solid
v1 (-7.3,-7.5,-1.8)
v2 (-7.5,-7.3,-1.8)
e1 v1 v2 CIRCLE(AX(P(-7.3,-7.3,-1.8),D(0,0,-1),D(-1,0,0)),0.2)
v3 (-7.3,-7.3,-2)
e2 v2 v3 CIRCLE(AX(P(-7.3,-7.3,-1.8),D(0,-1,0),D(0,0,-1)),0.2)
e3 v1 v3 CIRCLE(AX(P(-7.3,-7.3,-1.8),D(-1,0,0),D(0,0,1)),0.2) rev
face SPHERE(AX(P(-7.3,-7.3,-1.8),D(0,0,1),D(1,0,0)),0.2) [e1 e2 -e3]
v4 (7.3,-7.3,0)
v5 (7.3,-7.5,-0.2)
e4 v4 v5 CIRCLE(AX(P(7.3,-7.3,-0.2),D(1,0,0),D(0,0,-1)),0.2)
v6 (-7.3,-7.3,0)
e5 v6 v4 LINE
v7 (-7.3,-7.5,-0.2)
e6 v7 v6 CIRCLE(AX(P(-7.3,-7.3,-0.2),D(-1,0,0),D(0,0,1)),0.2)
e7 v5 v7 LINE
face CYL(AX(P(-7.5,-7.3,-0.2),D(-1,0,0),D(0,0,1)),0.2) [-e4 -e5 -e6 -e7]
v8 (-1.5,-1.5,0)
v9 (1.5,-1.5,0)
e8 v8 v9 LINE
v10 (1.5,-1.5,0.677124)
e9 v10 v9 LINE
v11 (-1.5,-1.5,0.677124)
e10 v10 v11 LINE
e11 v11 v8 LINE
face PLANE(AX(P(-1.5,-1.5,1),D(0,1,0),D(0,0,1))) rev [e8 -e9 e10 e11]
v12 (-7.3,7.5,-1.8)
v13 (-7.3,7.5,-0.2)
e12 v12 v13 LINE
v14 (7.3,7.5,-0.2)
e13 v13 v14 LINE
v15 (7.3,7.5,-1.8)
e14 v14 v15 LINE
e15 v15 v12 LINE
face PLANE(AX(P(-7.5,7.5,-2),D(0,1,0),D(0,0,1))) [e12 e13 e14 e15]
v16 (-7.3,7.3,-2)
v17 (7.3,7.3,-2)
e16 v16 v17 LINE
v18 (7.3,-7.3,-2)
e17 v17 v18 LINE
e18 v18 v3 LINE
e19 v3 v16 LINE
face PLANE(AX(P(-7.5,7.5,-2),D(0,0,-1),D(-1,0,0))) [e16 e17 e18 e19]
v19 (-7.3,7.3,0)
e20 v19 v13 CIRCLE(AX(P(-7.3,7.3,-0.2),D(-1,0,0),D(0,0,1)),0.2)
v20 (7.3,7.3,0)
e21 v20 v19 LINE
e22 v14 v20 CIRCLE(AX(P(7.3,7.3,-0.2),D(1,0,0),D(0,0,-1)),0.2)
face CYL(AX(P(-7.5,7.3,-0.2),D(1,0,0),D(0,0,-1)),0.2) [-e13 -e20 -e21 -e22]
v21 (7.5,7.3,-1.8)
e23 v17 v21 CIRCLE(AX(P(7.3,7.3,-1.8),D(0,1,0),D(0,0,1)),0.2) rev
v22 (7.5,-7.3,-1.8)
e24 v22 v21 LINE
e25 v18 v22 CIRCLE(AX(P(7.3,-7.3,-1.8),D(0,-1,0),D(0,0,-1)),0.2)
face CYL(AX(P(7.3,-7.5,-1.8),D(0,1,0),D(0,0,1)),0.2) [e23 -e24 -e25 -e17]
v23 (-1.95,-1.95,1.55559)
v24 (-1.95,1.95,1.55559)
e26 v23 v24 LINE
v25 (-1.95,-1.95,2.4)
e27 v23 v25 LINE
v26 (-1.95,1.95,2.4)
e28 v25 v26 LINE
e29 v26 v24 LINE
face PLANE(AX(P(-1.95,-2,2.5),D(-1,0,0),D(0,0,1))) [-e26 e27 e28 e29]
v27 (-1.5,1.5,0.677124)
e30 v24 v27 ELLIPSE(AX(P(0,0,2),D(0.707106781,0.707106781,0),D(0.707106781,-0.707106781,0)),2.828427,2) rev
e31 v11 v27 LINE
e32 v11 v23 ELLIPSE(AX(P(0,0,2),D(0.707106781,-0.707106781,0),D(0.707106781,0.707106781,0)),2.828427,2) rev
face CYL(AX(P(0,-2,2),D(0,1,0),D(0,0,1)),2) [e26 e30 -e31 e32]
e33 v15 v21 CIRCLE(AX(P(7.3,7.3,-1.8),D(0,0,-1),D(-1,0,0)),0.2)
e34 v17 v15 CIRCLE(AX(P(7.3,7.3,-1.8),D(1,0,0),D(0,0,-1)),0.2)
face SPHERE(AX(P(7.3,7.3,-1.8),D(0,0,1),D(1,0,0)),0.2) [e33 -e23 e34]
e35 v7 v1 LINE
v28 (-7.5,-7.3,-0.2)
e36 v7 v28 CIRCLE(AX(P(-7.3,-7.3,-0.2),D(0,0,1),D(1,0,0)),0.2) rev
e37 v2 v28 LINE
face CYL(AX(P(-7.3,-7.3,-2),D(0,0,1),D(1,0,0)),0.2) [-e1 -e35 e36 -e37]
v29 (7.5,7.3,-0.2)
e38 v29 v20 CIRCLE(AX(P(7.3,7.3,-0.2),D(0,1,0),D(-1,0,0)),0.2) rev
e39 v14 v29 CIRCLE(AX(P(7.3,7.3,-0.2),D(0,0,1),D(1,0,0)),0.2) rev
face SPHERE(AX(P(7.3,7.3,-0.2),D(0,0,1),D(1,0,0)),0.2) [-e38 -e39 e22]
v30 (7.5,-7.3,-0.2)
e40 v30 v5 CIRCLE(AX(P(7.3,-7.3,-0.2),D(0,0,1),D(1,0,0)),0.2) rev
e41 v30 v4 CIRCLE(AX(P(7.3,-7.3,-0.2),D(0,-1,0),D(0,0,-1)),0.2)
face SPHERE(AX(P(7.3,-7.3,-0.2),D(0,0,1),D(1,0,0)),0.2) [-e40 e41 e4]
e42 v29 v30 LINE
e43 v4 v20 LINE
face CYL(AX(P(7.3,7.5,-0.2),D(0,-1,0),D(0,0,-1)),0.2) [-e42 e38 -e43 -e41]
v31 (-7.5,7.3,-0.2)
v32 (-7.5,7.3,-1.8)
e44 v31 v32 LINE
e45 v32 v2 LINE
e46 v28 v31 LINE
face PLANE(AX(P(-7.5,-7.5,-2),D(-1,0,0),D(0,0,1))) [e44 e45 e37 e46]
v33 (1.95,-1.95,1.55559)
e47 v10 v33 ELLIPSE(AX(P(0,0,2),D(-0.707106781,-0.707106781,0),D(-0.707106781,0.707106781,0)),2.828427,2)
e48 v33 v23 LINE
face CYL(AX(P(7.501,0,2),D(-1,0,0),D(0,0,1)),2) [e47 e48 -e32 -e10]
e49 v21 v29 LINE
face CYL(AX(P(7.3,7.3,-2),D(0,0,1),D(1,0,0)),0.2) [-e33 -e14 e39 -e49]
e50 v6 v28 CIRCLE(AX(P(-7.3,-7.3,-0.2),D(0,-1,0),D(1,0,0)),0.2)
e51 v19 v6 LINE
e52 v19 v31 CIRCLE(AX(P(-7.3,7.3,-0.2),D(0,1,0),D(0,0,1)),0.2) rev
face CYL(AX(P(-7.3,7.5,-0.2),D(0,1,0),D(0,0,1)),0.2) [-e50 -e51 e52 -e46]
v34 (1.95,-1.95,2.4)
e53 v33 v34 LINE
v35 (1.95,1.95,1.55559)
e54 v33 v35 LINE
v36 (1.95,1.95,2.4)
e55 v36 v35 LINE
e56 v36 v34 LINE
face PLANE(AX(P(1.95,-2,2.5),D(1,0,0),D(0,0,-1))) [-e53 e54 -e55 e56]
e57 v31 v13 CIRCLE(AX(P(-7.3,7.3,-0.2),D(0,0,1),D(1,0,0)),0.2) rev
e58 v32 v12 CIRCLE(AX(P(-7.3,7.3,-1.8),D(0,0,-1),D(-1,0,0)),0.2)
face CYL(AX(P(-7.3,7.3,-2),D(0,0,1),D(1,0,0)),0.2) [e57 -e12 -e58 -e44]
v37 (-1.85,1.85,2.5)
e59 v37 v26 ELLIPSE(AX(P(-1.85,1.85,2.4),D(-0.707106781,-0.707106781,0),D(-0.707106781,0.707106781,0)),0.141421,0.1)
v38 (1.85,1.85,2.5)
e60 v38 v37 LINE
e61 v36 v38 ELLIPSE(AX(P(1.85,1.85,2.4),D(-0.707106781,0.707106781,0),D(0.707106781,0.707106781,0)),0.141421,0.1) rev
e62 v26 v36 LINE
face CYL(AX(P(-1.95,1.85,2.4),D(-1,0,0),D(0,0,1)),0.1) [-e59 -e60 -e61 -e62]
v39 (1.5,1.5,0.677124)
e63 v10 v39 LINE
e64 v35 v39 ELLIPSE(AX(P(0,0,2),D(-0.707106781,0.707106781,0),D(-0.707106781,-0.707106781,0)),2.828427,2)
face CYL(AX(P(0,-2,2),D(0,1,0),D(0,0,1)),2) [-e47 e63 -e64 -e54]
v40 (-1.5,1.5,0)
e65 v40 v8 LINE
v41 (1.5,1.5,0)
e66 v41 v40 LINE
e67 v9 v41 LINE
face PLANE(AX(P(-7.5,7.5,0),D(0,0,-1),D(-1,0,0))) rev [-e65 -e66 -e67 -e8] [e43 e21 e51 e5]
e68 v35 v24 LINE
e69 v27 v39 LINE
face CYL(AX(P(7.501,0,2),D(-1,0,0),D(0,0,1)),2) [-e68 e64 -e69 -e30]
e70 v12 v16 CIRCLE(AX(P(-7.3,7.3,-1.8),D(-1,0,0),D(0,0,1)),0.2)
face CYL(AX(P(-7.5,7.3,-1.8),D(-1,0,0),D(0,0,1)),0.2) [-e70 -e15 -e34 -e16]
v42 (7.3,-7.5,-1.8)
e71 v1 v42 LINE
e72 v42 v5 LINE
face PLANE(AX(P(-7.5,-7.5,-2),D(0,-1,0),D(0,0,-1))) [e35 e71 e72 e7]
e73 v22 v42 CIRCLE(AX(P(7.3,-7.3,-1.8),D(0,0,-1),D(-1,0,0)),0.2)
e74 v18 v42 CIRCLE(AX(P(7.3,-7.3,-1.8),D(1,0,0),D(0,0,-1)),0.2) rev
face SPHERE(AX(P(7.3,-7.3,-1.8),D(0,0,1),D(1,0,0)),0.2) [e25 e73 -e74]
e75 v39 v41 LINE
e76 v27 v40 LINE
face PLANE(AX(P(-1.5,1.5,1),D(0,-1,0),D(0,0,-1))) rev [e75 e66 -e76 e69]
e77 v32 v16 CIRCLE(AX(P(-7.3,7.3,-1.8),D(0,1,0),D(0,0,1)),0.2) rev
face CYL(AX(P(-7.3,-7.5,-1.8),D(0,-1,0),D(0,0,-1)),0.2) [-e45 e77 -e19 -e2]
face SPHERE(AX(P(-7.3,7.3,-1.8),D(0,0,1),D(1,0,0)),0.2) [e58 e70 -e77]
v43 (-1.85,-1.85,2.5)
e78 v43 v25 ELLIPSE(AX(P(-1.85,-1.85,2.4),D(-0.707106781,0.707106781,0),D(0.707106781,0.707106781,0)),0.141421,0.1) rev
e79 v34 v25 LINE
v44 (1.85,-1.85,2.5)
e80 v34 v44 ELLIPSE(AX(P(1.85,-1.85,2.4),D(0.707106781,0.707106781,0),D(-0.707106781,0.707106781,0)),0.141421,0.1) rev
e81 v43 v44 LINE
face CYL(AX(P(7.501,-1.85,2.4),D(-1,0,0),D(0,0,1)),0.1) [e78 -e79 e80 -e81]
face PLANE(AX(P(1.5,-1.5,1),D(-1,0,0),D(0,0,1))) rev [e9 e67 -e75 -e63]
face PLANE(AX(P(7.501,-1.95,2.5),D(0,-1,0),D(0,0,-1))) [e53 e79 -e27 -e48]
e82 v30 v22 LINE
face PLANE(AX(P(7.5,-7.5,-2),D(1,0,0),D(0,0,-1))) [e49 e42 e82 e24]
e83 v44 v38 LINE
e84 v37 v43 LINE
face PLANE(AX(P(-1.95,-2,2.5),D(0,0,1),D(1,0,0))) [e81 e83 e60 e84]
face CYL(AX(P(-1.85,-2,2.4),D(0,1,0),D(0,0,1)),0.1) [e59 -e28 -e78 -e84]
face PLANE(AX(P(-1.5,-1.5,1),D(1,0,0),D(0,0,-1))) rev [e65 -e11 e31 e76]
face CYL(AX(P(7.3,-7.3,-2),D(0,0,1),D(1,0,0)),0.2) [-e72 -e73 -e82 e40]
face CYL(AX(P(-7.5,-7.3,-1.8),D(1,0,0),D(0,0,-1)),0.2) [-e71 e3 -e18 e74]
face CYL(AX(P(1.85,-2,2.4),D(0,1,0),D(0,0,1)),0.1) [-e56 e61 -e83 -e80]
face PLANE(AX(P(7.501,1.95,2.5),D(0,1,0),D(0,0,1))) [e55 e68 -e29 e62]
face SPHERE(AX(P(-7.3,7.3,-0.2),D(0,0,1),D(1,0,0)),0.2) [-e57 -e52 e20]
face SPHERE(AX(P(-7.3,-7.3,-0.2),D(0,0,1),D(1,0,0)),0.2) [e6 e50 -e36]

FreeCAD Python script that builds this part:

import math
import FreeCAD as App
import Part
import Sketcher

V = App.Vector


def edges_at(feature, points):
    """Names of the edges that pass closest to the given points."""
    edges = feature.Shape.Edges
    near = lambda p: min(range(len(edges)), key=lambda i: edges[i].distToShape(Part.Vertex(*p))[0])
    return sorted({f"Edge{near(p) + 1}" for p in points})


def add_polygon(sketch, points):
    """Adds a closed chain of lines whose ends are joined by coincident constraints."""
    first, n = sketch.GeometryCount, len(points)
    for a, b in zip(points, points[1:] + points[:1]):
        sketch.addGeometry(Part.LineSegment(App.Vector(*a, 0), App.Vector(*b, 0)), False)
    for i in range(n):
        sketch.addConstraint(Sketcher.Constraint("Coincident", first + i, 2, first + (i + 1) % n, 1))

doc = App.newDocument("Part")
params = doc.addObject("Spreadsheet::Sheet", "Params")
for row, (alias, value) in enumerate([
    ("sketch1_width", "15 mm"),
    ("pad1_length", "2 mm"),
    ("sketch2_width", "3 mm"),
    ("pad2_length", "1 mm"),
    ("sketch3_radius", "2 mm"),
    ("sketch3_width", "3 mm"),
    ("sketch3_width2", "3.9 mm"),
    ("pad3_length", "2 mm"),
    ("pad3_length2", "2 mm"),
    ("sketch4_radius", "2 mm"),
    ("sketch4_width", "0.5 mm"),
    ("sketch4_width2", "0.05 mm"),
    ("sketch5_radius", "2 mm"),
    ("sketch5_width", "0.5 mm"),
    ("sketch5_width2", "0.05 mm"),
    ("sketch6_radius", "2 mm"),
    ("sketch6_width", "0.5 mm"),
    ("sketch6_width2", "0.05 mm"),
    ("sketch7_radius", "2 mm"),
    ("sketch7_width", "0.5 mm"),
    ("sketch7_width2", "0.05 mm"),
    ("fillet_radius", "0.1 mm"),
    ("fillet2_radius", "0.2 mm"),
], start=1):
    params.set(f"A{row}", alias)
    params.set(f"B{row}", "=" + value)
    params.setAlias(f"B{row}", alias)

body = doc.addObject("PartDesign::Body", "Body")

sketch1 = doc.addObject("Sketcher::SketchObject", "Sketch")
body.addObject(sketch1)
sketch1.AttachmentSupport = (doc.XY_Plane, [""])
sketch1.MapMode = "FlatFace"
add_polygon(sketch1, [(-8, 8), (-8, -8), (8, -8), (8, 8)])
sketch1.addConstraint([
    Sketcher.Constraint("Vertical", 0),
    Sketcher.Constraint("Horizontal", 1),
    Sketcher.Constraint("Vertical", 2),
    Sketcher.Constraint("Horizontal", 3),
    Sketcher.Constraint("Symmetric", 0, 2, 2, 2, -1, 1),
    Sketcher.Constraint("Equal", 3, 0),
    Sketcher.Constraint("DistanceX", 1, 1, 1, 2, 15.0),
])
sketch1.setExpression("Constraints[10]", "Params.sketch1_width")
pad1 = doc.addObject("PartDesign::Pad", "Pad")
body.addObject(pad1)
pad1.Profile = sketch1
pad1.setExpression("Length", "Params.pad1_length")
pad1.Reversed = True

sketch2 = doc.addObject("Sketcher::SketchObject", "Sketch001")
body.addObject(sketch2)
sketch2.AttachmentSupport = (doc.XY_Plane, [""])
sketch2.MapMode = "FlatFace"
add_polygon(sketch2, [(-1.5, 1.5), (-1.5, -1.5), (1.5, -1.5), (1.5, 1.5)])
sketch2.addConstraint([
    Sketcher.Constraint("Vertical", 0),
    Sketcher.Constraint("Horizontal", 1),
    Sketcher.Constraint("Vertical", 2),
    Sketcher.Constraint("Horizontal", 3),
    Sketcher.Constraint("Symmetric", 0, 2, 2, 2, -1, 1),
    Sketcher.Constraint("Equal", 3, 0),
    Sketcher.Constraint("DistanceX", 1, 1, 1, 2, 3.0),
])
sketch2.setExpression("Constraints[10]", "Params.sketch2_width")
pad2 = doc.addObject("PartDesign::Pad", "Pad001")
body.addObject(pad2)
pad2.Profile = sketch2
pad2.setExpression("Length", "Params.pad2_length")

sketch3 = doc.addObject("Sketcher::SketchObject", "Sketch002")
body.addObject(sketch3)
sketch3.AttachmentSupport = (doc.XZ_Plane, [""])
sketch3.MapMode = "FlatFace"
sketch3.addGeometry([
    Part.LineSegment(V(-1.9, 2.5, 0), V(1.9, 2.5, 0)),
    Part.LineSegment(V(1.9, 2.5, 0), V(1.9, 1.6, 0)),
    Part.ArcOfCircle(Part.Circle(V(0, 2, 0), V(0, 0, 1), 2), math.radians(-41), math.radians(-13)),
    Part.LineSegment(V(1.5, 0.7, 0), V(-1.5, 0.7, 0)),
    Part.ArcOfCircle(Part.Circle(V(0, 2, 0), V(0, 0, 1), 2), math.radians(-167), math.radians(-139)),
    Part.LineSegment(V(-1.9, 1.6, 0), V(-1.9, 2.5, 0)),
], False)
sketch3.addConstraint([
    Sketcher.Constraint("Coincident", 0, 2, 1, 1),
    Sketcher.Constraint("Coincident", 1, 2, 2, 2),
    Sketcher.Constraint("Coincident", 2, 1, 3, 1),
    Sketcher.Constraint("Coincident", 3, 2, 4, 2),
    Sketcher.Constraint("Coincident", 4, 1, 5, 1),
    Sketcher.Constraint("Coincident", 5, 2, 0, 1),
    Sketcher.Constraint("Horizontal", 0),
    Sketcher.Constraint("Vertical", 1),
    Sketcher.Constraint("Horizontal", 3),
    Sketcher.Constraint("Vertical", 5),
    Sketcher.Constraint("Coincident", 4, 3, 2, 3),
    Sketcher.Constraint("Equal", 2, 4),
    Sketcher.Constraint("Symmetric", 1, 2, 4, 1, -2),
    Sketcher.Constraint("Radius", 2, 2.0),
    Sketcher.Constraint("DistanceX", 3, 2, 3, 1, 3.0),
    Sketcher.Constraint("DistanceX", 0, 1, 0, 2, 3.9),
    Sketcher.Constraint("DistanceY", -1, 1, 2, 3, 2.0),
    Sketcher.Constraint("DistanceY", -1, 1, 0, 2, 2.5),
])
sketch3.setExpression("Constraints[13]", "Params.sketch3_radius")
sketch3.setExpression("Constraints[14]", "Params.sketch3_width")
sketch3.setExpression("Constraints[15]", "Params.sketch3_width2")
pad3 = doc.addObject("PartDesign::Pad", "Pad002")
body.addObject(pad3)
pad3.Profile = sketch3
pad3.Type = "TwoLengths"
pad3.setExpression("Length", "Params.pad3_length")
pad3.setExpression("Length2", "Params.pad3_length2")
pad3.Reversed = True

sketch4 = doc.addObject("Sketcher::SketchObject", "Sketch003")
body.addObject(sketch4)
sketch4.AttachmentSupport = (doc.YZ_Plane, [""])
sketch4.MapMode = "FlatFace"
sketch4.addGeometry([
    Part.LineSegment(V(1.95, 2.5, 0), V(1.95, 1.56, 0)),
    Part.ArcOfCircle(Part.Circle(V(0, 2, 0), V(0, 0, 1), 2), math.radians(-41), math.radians(-13)),
    Part.LineSegment(V(1.5, 0.68, 0), V(2, 0.68, 0)),
    Part.LineSegment(V(2, 0.68, 0), V(2, 2.5, 0)),
    Part.LineSegment(V(2, 2.5, 0), V(1.95, 2.5, 0)),
], False)
sketch4.addConstraint([
    Sketcher.Constraint("Coincident", 0, 2, 1, 2),
    Sketcher.Constraint("Coincident", 1, 1, 2, 1),
    Sketcher.Constraint("Coincident", 2, 2, 3, 1),
    Sketcher.Constraint("Coincident", 3, 2, 4, 1),
    Sketcher.Constraint("Coincident", 4, 2, 0, 1),
    Sketcher.Constraint("Vertical", 0),
    Sketcher.Constraint("Horizontal", 2),
    Sketcher.Constraint("Vertical", 3),
    Sketcher.Constraint("Horizontal", 4),
    Sketcher.Constraint("PointOnObject", 1, 3, -2),
    Sketcher.Constraint("Radius", 1, 2.0),
    Sketcher.Constraint("DistanceX", 2, 1, 2, 2, 0.5),
    Sketcher.Constraint("DistanceY", -1, 1, 1, 3, 2.0),
    Sketcher.Constraint("DistanceX", -1, 1, 2, 2, 2.0),
    Sketcher.Constraint("DistanceX", 4, 2, 4, 1, 0.05),
    Sketcher.Constraint("DistanceY", -1, 1, 3, 2, 2.5),
])
sketch4.setExpression("Constraints[10]", "Params.sketch4_radius")
sketch4.setExpression("Constraints[11]", "Params.sketch4_width")
sketch4.setExpression("Constraints[14]", "Params.sketch4_width2")
pocket1 = doc.addObject("PartDesign::Pocket", "Pocket")
body.addObject(pocket1)
pocket1.Profile = sketch4
pocket1.Type = "UpToFirst"

sketch5 = doc.addObject("Sketcher::SketchObject", "Sketch004")
body.addObject(sketch5)
sketch5.AttachmentSupport = (doc.YZ_Plane, [""])
sketch5.MapMode = "FlatFace"
sketch5.addGeometry([
    Part.LineSegment(V(-2, 2.5, 0), V(-2, 0.68, 0)),
    Part.LineSegment(V(-2, 0.68, 0), V(-1.5, 0.68, 0)),
    Part.ArcOfCircle(Part.Circle(V(0, 2, 0), V(0, 0, 1), 2), math.radians(-167), math.radians(-139)),
    Part.LineSegment(V(-1.95, 1.56, 0), V(-1.95, 2.5, 0)),
    Part.LineSegment(V(-1.95, 2.5, 0), V(-2, 2.5, 0)),
], False)
sketch5.addConstraint([
    Sketcher.Constraint("Coincident", 0, 2, 1, 1),
    Sketcher.Constraint("Coincident", 1, 2, 2, 2),
    Sketcher.Constraint("Coincident", 2, 1, 3, 1),
    Sketcher.Constraint("Coincident", 3, 2, 4, 1),
    Sketcher.Constraint("Coincident", 4, 2, 0, 1),
    Sketcher.Constraint("Vertical", 0),
    Sketcher.Constraint("Horizontal", 1),
    Sketcher.Constraint("Vertical", 3),
    Sketcher.Constraint("Horizontal", 4),
    Sketcher.Constraint("PointOnObject", 2, 3, -2),
    Sketcher.Constraint("Radius", 2, 2.0),
    Sketcher.Constraint("DistanceX", 1, 1, 1, 2, 0.5),
    Sketcher.Constraint("DistanceY", -1, 1, 2, 3, 2.0),
    Sketcher.Constraint("DistanceX", 0, 2, -1, 1, 2.0),
    Sketcher.Constraint("DistanceX", 4, 2, 4, 1, 0.05),
    Sketcher.Constraint("DistanceY", -1, 1, 3, 2, 2.5),
])
sketch5.setExpression("Constraints[10]", "Params.sketch5_radius")
sketch5.setExpression("Constraints[11]", "Params.sketch5_width")
sketch5.setExpression("Constraints[14]", "Params.sketch5_width2")
pocket2 = doc.addObject("PartDesign::Pocket", "Pocket001")
body.addObject(pocket2)
pocket2.Profile = sketch5
pocket2.Type = "UpToFirst"

sketch6 = doc.addObject("Sketcher::SketchObject", "Sketch005")
body.addObject(sketch6)
sketch6.AttachmentSupport = (doc.YZ_Plane, [""])
sketch6.MapMode = "FlatFace"
sketch6.addGeometry([
    Part.LineSegment(V(1.95, 2.5, 0), V(1.95, 1.56, 0)),
    Part.ArcOfCircle(Part.Circle(V(0, 2, 0), V(0, 0, 1), 2), math.radians(-41), math.radians(-13)),
    Part.LineSegment(V(1.5, 0.68, 0), V(2, 0.68, 0)),
    Part.LineSegment(V(2, 0.68, 0), V(2, 2.5, 0)),
    Part.LineSegment(V(2, 2.5, 0), V(1.95, 2.5, 0)),
], False)
sketch6.addConstraint([
    Sketcher.Constraint("Coincident", 0, 2, 1, 2),
    Sketcher.Constraint("Coincident", 1, 1, 2, 1),
    Sketcher.Constraint("Coincident", 2, 2, 3, 1),
    Sketcher.Constraint("Coincident", 3, 2, 4, 1),
    Sketcher.Constraint("Coincident", 4, 2, 0, 1),
    Sketcher.Constraint("Vertical", 0),
    Sketcher.Constraint("Horizontal", 2),
    Sketcher.Constraint("Vertical", 3),
    Sketcher.Constraint("Horizontal", 4),
    Sketcher.Constraint("PointOnObject", 1, 3, -2),
    Sketcher.Constraint("Radius", 1, 2.0),
    Sketcher.Constraint("DistanceX", 2, 1, 2, 2, 0.5),
    Sketcher.Constraint("DistanceY", -1, 1, 1, 3, 2.0),
    Sketcher.Constraint("DistanceX", -1, 1, 2, 2, 2.0),
    Sketcher.Constraint("DistanceX", 4, 2, 4, 1, 0.05),
    Sketcher.Constraint("DistanceY", -1, 1, 3, 2, 2.5),
])
sketch6.setExpression("Constraints[10]", "Params.sketch6_radius")
sketch6.setExpression("Constraints[11]", "Params.sketch6_width")
sketch6.setExpression("Constraints[14]", "Params.sketch6_width2")
pocket3 = doc.addObject("PartDesign::Pocket", "Pocket002")
body.addObject(pocket3)
pocket3.Profile = sketch6
pocket3.Type = "UpToFirst"
pocket3.Reversed = True

sketch7 = doc.addObject("Sketcher::SketchObject", "Sketch006")
body.addObject(sketch7)
sketch7.AttachmentSupport = (doc.YZ_Plane, [""])
sketch7.MapMode = "FlatFace"
sketch7.addGeometry([
    Part.LineSegment(V(-2, 2.5, 0), V(-2, 0.68, 0)),
    Part.LineSegment(V(-2, 0.68, 0), V(-1.5, 0.68, 0)),
    Part.ArcOfCircle(Part.Circle(V(0, 2, 0), V(0, 0, 1), 2), math.radians(-167), math.radians(-139)),
    Part.LineSegment(V(-1.95, 1.56, 0), V(-1.95, 2.5, 0)),
    Part.LineSegment(V(-1.95, 2.5, 0), V(-2, 2.5, 0)),
], False)
sketch7.addConstraint([
    Sketcher.Constraint("Coincident", 0, 2, 1, 1),
    Sketcher.Constraint("Coincident", 1, 2, 2, 2),
    Sketcher.Constraint("Coincident", 2, 1, 3, 1),
    Sketcher.Constraint("Coincident", 3, 2, 4, 1),
    Sketcher.Constraint("Coincident", 4, 2, 0, 1),
    Sketcher.Constraint("Vertical", 0),
    Sketcher.Constraint("Horizontal", 1),
    Sketcher.Constraint("Vertical", 3),
    Sketcher.Constraint("Horizontal", 4),
    Sketcher.Constraint("PointOnObject", 2, 3, -2),
    Sketcher.Constraint("Radius", 2, 2.0),
    Sketcher.Constraint("DistanceX", 1, 1, 1, 2, 0.5),
    Sketcher.Constraint("DistanceY", -1, 1, 2, 3, 2.0),
    Sketcher.Constraint("DistanceX", 0, 2, -1, 1, 2.0),
    Sketcher.Constraint("DistanceX", 4, 2, 4, 1, 0.05),
    Sketcher.Constraint("DistanceY", -1, 1, 3, 2, 2.5),
])
sketch7.setExpression("Constraints[10]", "Params.sketch7_radius")
sketch7.setExpression("Constraints[11]", "Params.sketch7_width")
sketch7.setExpression("Constraints[14]", "Params.sketch7_width2")
pocket4 = doc.addObject("PartDesign::Pocket", "Pocket003")
body.addObject(pocket4)
pocket4.Profile = sketch7
pocket4.Type = "UpToFirst"
pocket4.Reversed = True
doc.recompute()

fillet = doc.addObject("PartDesign::Fillet", "Fillet")
body.addObject(fillet)
fillet.Base = (pocket4, edges_at(pocket4, [
    (-1.95, 0, 2.5),
    (1.95, 0, 2.5),
    (0, -1.95, 2.5),
    (0, 1.95, 2.5),
]))
fillet.setExpression("Radius", "Params.fillet_radius")
doc.recompute()

fillet2 = doc.addObject("PartDesign::Fillet", "Fillet001")
body.addObject(fillet2)
fillet2.Base = (fillet, edges_at(fillet, [
    (7.5, 0, -2),
    (0, 7.5, -2),
    (-7.5, 0, -2),
    (0, 7.5, 0),
    (7.5, 0, 0),
    (0, -7.5, 0),
    (-7.5, 0, 0),
    (0, -7.5, -2),
    (-7.5, 7.5, -1),
    (7.5, 7.5, -1),
    (7.5, -7.5, -1),
    (-7.5, -7.5, -1),
]))
fillet2.setExpression("Radius", "Params.fillet2_radius")

doc.recompute()
